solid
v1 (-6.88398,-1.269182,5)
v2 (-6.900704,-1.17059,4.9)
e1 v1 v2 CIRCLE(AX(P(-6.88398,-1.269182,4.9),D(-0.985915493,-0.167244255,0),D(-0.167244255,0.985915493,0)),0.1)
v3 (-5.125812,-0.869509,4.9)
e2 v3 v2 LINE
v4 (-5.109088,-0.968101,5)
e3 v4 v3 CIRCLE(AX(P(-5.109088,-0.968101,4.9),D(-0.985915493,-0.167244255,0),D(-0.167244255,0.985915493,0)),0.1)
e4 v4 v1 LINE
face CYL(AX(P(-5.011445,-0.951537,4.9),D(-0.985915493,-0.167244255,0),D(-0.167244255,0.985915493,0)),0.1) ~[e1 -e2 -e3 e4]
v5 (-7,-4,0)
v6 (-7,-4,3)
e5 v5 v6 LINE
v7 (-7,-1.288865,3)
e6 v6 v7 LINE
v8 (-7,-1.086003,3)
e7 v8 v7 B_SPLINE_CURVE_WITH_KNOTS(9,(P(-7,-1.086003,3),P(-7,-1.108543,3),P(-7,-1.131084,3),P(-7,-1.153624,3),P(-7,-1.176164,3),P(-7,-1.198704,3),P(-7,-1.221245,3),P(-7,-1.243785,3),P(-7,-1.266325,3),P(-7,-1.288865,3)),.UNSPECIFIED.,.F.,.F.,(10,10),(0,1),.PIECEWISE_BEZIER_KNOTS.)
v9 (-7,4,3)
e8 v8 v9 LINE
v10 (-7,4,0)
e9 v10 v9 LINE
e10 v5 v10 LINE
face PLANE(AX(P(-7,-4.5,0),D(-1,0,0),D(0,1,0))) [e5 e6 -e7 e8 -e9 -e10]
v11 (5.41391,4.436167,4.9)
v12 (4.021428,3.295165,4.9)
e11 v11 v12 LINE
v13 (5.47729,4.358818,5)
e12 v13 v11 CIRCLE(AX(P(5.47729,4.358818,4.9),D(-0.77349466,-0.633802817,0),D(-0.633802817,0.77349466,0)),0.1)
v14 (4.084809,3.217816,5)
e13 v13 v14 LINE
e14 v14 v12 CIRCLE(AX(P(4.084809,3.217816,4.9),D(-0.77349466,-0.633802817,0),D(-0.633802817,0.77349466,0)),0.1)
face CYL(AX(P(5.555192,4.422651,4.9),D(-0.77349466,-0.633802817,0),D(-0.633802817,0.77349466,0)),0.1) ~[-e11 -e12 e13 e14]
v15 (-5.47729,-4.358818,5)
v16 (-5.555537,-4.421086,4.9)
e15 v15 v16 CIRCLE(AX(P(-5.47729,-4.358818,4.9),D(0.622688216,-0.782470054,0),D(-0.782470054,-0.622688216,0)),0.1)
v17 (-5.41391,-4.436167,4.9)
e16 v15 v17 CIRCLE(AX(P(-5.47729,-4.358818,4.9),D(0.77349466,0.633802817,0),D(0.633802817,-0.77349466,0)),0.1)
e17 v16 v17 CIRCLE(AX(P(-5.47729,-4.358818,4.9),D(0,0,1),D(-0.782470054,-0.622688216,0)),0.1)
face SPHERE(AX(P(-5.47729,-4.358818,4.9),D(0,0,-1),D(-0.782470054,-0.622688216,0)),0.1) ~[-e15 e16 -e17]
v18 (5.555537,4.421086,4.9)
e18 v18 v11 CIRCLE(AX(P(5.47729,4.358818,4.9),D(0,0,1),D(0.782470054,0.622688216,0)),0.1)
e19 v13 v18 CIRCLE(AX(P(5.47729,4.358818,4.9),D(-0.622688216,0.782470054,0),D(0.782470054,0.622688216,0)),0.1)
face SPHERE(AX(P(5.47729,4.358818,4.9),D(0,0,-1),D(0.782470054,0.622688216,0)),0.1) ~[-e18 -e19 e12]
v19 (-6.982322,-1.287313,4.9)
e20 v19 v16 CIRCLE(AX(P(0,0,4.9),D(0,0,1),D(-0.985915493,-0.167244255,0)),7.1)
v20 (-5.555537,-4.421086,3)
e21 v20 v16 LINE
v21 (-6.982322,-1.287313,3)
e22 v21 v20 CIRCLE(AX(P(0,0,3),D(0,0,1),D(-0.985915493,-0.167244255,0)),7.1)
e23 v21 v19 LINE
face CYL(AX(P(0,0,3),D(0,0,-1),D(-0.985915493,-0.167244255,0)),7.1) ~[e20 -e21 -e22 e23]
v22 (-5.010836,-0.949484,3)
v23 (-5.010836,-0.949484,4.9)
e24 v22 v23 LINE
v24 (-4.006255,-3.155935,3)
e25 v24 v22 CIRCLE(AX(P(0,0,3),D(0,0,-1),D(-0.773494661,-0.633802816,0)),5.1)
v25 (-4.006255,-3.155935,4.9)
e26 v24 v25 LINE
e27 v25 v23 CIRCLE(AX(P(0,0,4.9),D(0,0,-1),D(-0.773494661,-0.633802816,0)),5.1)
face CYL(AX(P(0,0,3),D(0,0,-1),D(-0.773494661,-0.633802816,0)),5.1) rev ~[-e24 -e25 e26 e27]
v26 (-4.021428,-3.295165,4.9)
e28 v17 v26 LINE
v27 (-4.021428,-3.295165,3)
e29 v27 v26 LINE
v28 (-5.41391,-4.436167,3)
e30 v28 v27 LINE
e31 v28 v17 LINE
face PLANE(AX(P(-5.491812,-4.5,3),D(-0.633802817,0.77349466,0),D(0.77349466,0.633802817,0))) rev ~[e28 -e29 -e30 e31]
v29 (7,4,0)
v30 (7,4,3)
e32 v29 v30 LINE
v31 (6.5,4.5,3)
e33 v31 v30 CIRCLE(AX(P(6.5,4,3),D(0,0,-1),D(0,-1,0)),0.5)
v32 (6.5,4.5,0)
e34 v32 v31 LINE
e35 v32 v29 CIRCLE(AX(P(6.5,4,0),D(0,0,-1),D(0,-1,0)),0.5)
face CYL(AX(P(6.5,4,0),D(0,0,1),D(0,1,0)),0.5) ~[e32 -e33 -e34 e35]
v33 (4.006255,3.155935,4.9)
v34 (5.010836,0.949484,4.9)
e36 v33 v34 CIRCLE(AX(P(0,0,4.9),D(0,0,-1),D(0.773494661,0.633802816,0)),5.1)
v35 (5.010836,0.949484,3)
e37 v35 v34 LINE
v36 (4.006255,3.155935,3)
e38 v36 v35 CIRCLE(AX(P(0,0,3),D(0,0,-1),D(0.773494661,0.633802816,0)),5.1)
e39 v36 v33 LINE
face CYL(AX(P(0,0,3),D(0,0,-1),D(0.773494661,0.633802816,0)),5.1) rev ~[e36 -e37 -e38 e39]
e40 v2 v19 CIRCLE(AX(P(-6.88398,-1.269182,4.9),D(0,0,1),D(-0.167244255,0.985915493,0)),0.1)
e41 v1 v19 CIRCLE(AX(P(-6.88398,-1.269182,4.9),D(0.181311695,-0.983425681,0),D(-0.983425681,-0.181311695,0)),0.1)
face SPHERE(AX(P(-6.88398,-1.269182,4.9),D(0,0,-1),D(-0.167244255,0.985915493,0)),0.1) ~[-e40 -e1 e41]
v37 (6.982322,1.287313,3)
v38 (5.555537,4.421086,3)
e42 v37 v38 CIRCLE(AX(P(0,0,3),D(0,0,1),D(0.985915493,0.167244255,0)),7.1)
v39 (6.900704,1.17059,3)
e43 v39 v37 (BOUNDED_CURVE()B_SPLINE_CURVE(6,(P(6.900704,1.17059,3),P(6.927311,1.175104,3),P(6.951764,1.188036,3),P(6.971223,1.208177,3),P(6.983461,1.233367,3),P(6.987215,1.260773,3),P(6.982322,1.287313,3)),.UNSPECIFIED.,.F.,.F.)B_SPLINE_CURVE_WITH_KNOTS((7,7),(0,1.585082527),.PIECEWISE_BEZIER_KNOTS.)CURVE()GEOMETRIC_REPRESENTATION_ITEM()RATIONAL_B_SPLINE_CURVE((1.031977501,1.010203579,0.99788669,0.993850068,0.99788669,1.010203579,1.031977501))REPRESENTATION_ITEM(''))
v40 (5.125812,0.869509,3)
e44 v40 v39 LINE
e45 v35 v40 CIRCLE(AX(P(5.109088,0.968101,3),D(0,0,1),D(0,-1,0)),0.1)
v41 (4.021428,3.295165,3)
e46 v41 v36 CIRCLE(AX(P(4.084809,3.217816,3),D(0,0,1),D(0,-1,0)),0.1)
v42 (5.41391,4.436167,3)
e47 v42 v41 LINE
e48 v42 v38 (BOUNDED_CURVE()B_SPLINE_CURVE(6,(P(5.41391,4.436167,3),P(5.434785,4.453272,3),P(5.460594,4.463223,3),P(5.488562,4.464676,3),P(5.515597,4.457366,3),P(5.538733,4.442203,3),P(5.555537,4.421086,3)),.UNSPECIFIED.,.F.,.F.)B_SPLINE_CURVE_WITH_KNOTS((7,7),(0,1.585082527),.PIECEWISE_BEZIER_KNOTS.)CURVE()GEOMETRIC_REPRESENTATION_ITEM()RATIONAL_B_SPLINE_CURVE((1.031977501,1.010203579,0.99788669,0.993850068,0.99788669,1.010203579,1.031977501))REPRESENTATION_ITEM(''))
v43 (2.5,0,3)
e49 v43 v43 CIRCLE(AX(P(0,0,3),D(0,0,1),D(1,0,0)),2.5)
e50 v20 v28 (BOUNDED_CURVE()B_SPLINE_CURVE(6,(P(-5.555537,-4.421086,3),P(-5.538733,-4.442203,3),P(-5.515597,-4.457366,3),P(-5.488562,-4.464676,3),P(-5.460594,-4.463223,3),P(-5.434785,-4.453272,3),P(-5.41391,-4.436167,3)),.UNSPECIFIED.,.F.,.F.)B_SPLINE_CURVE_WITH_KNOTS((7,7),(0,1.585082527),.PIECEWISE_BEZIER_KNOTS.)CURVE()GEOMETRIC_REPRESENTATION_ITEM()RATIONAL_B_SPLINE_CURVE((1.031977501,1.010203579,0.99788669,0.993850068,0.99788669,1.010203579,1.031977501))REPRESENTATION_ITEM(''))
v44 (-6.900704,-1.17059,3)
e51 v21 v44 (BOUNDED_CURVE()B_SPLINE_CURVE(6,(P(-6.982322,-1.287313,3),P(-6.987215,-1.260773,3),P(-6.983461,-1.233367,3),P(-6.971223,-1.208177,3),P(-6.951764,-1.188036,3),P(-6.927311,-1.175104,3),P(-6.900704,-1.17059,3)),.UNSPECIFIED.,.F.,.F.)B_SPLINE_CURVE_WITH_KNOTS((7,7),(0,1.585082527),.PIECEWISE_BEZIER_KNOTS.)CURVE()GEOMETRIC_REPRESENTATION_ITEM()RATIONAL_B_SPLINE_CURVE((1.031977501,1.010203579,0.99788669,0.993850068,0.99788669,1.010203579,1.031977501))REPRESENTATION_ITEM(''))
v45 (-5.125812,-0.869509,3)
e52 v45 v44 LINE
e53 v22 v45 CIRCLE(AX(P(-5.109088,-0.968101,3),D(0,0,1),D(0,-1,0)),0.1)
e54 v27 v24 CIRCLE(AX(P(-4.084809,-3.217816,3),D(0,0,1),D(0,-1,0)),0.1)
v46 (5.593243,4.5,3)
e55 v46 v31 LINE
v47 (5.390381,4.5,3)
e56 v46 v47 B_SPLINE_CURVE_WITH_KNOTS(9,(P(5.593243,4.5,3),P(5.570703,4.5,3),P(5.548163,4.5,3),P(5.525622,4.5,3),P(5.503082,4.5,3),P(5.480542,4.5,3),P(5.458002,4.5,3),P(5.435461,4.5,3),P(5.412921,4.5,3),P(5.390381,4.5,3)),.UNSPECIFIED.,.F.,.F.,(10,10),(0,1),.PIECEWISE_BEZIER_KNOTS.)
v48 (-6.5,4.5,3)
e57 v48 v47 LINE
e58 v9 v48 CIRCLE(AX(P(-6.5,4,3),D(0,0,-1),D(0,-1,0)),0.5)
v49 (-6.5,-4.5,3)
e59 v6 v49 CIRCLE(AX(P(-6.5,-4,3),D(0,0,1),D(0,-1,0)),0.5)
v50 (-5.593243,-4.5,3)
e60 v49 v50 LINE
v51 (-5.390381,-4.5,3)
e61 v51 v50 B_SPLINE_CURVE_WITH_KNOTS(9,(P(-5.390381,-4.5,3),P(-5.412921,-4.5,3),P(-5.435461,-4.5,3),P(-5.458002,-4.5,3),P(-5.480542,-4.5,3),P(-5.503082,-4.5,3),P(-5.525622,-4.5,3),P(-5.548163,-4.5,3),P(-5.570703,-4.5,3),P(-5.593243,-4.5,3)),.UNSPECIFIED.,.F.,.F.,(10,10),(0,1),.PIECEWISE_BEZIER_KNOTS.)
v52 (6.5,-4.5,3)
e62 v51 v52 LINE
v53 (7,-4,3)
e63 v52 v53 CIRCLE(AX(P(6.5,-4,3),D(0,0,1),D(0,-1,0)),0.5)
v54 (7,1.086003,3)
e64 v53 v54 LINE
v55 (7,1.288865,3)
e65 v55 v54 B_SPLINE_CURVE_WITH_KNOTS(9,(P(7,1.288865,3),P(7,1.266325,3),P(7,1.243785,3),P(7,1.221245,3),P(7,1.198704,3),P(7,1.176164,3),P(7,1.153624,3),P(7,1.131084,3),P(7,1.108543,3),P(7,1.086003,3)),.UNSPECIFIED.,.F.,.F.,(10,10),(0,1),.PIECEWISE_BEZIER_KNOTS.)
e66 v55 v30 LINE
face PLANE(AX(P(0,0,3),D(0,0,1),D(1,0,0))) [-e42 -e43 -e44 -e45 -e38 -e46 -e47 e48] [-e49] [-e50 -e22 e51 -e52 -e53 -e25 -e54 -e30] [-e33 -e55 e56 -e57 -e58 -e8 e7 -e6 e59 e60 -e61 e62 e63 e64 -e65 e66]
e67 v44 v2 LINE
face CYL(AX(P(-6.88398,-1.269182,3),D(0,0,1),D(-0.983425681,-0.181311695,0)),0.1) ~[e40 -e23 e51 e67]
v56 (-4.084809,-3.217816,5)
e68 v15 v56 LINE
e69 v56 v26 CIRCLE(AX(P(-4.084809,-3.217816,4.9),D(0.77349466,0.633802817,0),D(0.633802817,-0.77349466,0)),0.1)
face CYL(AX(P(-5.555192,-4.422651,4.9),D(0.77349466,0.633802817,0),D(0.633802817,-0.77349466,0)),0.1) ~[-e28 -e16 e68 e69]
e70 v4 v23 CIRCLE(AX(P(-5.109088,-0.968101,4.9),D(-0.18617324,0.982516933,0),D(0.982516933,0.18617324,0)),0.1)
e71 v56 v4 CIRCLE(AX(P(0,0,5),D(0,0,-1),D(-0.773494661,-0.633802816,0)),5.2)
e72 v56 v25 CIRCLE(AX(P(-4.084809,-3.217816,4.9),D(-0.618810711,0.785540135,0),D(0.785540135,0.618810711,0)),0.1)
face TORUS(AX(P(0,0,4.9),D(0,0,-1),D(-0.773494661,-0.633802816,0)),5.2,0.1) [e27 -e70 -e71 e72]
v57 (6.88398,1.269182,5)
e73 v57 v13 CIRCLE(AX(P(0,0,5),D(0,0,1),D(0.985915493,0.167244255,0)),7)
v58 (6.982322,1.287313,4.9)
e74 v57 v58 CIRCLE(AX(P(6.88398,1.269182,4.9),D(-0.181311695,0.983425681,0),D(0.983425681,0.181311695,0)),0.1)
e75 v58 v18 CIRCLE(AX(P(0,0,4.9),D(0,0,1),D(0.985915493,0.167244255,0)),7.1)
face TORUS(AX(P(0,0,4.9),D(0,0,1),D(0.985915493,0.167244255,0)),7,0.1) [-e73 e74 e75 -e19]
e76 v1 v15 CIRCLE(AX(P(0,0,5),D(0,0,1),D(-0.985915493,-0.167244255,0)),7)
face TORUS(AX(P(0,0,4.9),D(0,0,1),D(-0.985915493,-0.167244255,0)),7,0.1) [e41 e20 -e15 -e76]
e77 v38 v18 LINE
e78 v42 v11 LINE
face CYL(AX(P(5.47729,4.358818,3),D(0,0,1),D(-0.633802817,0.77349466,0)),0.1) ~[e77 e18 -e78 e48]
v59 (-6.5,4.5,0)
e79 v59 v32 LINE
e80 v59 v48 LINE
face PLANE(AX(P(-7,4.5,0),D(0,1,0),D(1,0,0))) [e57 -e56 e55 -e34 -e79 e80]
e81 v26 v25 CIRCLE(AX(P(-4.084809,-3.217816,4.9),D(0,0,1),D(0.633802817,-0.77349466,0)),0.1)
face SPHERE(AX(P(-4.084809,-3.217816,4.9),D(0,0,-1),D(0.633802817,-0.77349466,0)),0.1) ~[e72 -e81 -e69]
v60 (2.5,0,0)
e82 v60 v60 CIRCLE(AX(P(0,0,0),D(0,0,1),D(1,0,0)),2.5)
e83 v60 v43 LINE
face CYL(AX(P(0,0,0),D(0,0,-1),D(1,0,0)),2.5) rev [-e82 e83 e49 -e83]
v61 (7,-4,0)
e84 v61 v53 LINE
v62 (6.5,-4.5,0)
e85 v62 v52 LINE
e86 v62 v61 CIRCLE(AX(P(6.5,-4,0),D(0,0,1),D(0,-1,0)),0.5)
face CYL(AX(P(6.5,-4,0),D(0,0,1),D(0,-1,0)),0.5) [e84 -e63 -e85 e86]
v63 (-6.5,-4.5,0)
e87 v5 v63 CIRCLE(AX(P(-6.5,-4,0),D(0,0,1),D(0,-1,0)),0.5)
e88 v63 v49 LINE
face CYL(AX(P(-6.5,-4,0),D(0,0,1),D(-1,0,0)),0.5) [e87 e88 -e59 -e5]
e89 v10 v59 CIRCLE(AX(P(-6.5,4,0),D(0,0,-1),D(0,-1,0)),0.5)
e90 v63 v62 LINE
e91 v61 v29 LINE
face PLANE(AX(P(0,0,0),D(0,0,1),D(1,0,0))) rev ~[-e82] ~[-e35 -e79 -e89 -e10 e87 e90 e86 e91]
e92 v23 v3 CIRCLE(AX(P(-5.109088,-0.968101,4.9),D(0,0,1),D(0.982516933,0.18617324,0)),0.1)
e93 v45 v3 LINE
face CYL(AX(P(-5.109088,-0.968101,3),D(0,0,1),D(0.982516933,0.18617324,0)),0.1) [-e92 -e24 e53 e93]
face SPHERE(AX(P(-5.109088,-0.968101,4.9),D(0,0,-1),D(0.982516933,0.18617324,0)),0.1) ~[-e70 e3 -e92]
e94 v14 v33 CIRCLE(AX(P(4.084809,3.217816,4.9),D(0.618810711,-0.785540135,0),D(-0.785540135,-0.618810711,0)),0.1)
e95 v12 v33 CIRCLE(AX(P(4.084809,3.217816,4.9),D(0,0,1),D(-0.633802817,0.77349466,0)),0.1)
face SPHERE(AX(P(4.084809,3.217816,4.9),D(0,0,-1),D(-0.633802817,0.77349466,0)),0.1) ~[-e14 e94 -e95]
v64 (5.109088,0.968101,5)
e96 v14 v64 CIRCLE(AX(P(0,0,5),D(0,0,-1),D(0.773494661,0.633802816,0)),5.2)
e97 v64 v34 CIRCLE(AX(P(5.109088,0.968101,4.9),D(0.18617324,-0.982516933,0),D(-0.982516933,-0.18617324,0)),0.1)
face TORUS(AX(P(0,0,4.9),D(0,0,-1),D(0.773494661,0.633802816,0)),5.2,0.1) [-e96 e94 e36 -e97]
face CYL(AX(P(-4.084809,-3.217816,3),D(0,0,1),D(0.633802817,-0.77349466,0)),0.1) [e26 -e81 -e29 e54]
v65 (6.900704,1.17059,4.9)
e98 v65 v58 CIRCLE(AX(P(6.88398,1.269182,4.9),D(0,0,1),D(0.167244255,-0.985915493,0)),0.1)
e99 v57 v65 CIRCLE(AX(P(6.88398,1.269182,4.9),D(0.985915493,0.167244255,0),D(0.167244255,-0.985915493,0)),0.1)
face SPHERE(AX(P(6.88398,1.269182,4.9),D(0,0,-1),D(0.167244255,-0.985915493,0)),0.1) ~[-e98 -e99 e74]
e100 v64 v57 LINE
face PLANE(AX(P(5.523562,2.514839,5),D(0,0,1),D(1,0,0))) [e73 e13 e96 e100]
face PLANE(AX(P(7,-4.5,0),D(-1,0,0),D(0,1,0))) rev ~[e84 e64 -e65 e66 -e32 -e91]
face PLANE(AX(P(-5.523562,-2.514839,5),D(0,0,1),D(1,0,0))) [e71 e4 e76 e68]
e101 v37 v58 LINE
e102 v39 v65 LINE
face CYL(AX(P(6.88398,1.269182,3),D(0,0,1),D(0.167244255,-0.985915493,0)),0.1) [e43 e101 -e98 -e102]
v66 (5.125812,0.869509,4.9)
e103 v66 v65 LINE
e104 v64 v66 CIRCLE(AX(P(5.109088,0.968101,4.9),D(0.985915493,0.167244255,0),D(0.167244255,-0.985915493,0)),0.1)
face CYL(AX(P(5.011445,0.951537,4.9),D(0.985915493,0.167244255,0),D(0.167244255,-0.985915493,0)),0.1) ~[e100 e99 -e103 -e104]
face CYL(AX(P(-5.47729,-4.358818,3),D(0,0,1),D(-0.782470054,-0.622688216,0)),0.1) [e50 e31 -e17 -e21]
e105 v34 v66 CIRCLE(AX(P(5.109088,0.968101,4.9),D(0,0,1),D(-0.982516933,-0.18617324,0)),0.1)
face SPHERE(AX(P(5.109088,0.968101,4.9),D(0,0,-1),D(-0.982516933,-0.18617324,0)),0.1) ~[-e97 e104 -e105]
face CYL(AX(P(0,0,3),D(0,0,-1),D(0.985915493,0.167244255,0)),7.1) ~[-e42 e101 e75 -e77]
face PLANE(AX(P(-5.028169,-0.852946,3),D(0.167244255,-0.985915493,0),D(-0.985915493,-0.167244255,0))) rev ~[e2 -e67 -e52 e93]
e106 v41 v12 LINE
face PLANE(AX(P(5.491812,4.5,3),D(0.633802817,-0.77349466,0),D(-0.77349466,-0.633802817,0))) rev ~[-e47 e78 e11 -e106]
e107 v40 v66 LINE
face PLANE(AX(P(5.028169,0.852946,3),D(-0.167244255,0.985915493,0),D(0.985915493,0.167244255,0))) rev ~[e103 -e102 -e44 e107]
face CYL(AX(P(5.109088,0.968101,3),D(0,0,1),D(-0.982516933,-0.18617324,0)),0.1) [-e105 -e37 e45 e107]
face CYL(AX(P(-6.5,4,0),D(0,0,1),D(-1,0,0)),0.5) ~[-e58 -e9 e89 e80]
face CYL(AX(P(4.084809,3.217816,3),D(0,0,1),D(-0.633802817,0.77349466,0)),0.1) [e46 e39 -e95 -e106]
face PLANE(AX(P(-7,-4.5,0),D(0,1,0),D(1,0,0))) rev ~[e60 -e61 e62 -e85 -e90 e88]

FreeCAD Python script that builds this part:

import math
import FreeCAD as App
import Part
import Sketcher

V = App.Vector
Q = App.Units.Quantity


def edges_at(feature, points):
    """Names of the edges that pass closest to the given points."""
    edges = feature.Shape.Edges
    near = lambda p: min(range(len(edges)), key=lambda i: edges[i].distToShape(Part.Vertex(*p))[0])
    return sorted({f"Edge{near(p) + 1}" for p in points})


def add_polygon(sketch, points):
    """Adds a closed chain of lines whose ends are joined by coincident constraints."""
    first, n = sketch.GeometryCount, len(points)
    for a, b in zip(points, points[1:] + points[:1]):
        sketch.addGeometry(Part.LineSegment(App.Vector(*a, 0), App.Vector(*b, 0)), False)
    for i in range(n):
        sketch.addConstraint(Sketcher.Constraint("Coincident", first + i, 2, first + (i + 1) % n, 1))

doc = App.newDocument("Part")
body = doc.addObject("PartDesign::Body", "Body")

# Sketch on XY plane
sketch1 = doc.addObject("Sketcher::SketchObject", "Sketch")
body.addObject(sketch1)
sketch1.AttachmentSupport = (doc.XY_Plane, [""])
sketch1.MapMode = "FlatFace"
add_polygon(sketch1, [(-7, 4.5), (-7, -4.5), (7, -4.5), (7, 4.5)])  # lines 0-3
sketch1.addGeometry(Part.Circle(V(0, 0, 0), V(0, 0, 1), 2.5), False)  # 4
sketch1.addConstraint([
    Sketcher.Constraint("Vertical", 0),
    Sketcher.Constraint("Horizontal", 1),
    Sketcher.Constraint("Vertical", 2),
    Sketcher.Constraint("Horizontal", 3),
    Sketcher.Constraint("Coincident", 4, 3, -1, 1),
    Sketcher.Constraint("Symmetric", 0, 2, 2, 2, -1, 1),
    Sketcher.Constraint("Diameter", 4, Q("5 mm")),
    Sketcher.Constraint("DistanceX", 1, 1, 1, 2, Q("14 mm")),
    Sketcher.Constraint("DistanceY", 0, 2, 0, 1, Q("9 mm")),
])
pad1 = doc.addObject("PartDesign::Pad", "Pad")
body.addObject(pad1)
pad1.Profile = sketch1
pad1.Length = 3
doc.recompute()

fillet = doc.addObject("PartDesign::Fillet", "Fillet")
body.addObject(fillet)
fillet.Base = (pad1, edges_at(pad1, [
    (-7, 4.5, 1.5),
    (7, 4.5, 1.5),
    (7, -4.5, 1.5),
    (-7, -4.5, 1.5),
]))
fillet.Radius = 0.5

# Sketch on XY plane
sketch2 = doc.addObject("Sketcher::SketchObject", "Sketch001")
body.addObject(sketch2)
sketch2.AttachmentSupport = (doc.XY_Plane, [""])
sketch2.MapMode = "FlatFace"
sketch2.AttachmentOffset = App.Placement(V(0, 0, 3), App.Rotation())
sketch2.addGeometry([
    Part.LineSegment(V(-5, -0.9, 0), V(-7, -1.2, 0)),  # 0
    Part.ArcOfCircle(Part.Circle(V(0, 0, 0), V(0, 0, 1), 7.1), math.radians(-170), math.radians(-141)),  # 1
    Part.LineSegment(V(-5.5, -4.5, 0), V(-3.9, -3.2, 0)),  # 2
    Part.ArcOfCircle(Part.Circle(V(0, 0, 0), V(0, 0, 1), 5.1), math.radians(-170), math.radians(-141)),  # 3
    Part.LineSegment(V(5.5, 4.5, 0), V(3.9, 3.2, 0)),  # 4
    Part.ArcOfCircle(Part.Circle(V(0, 0, 0), V(0, 0, 1), 5.1), math.radians(10), math.radians(39)),  # 5
    Part.LineSegment(V(5, 0.9, 0), V(7, 1.2, 0)),  # 6
    Part.ArcOfCircle(Part.Circle(V(0, 0, 0), V(0, 0, 1), 7.1), math.radians(10), math.radians(39)),  # 7
], False)
sketch2.addConstraint([
    Sketcher.Constraint("Coincident", 0, 2, 1, 1),
    Sketcher.Constraint("Coincident", 1, 2, 2, 1),
    Sketcher.Constraint("Coincident", 2, 2, 3, 2),
    Sketcher.Constraint("Coincident", 3, 1, 0, 1),
    Sketcher.Constraint("Coincident", 4, 2, 5, 2),
    Sketcher.Constraint("Coincident", 5, 1, 6, 1),
    Sketcher.Constraint("Coincident", 6, 2, 7, 1),
    Sketcher.Constraint("Coincident", 7, 2, 4, 1),
    Sketcher.Constraint("Coincident", 1, 3, -1, 1),
    Sketcher.Constraint("Coincident", 3, 3, -1, 1),
    Sketcher.Constraint("Coincident", 5, 3, -1, 1),
    Sketcher.Constraint("Coincident", 7, 3, -1, 1),
    Sketcher.Constraint("Equal", 3, 5),
    Sketcher.Constraint("Equal", 1, 7),
    Sketcher.Constraint("Parallel", 2, 4),
    Sketcher.Constraint("Parallel", 0, 6),
    Sketcher.Constraint("Radius", 1, Q("7.1 mm")),
    Sketcher.Constraint("Radius", 3, Q("5.1 mm")),
    Sketcher.Constraint("DistanceX", 0, 2, -1, 1, Q("7 mm")),
    Sketcher.Constraint("DistanceX", -1, 1, 6, 2, Q("7 mm")),
    Sketcher.Constraint("DistanceY", 1, 2, -1, 1, Q("4.5 mm")),
    Sketcher.Constraint("DistanceY", -1, 1, 7, 2, Q("4.5 mm")),
    Sketcher.Constraint("DistanceX", 3, 1, -1, 1, Q("5.028169 mm")),
    Sketcher.Constraint("DistanceX", 1, 2, 2, 2, Q("1.546989 mm")),
])
pad2 = doc.addObject("PartDesign::Pad", "Pad001")
body.addObject(pad2)
pad2.Profile = sketch2
pad2.Length = 2
doc.recompute()

fillet2 = doc.addObject("PartDesign::Fillet", "Fillet001")
body.addObject(fillet2)
fillet2.Base = (pad2, edges_at(pad2, [
    (-5.028, -0.853, 4),
    (-7, -1.187, 4),
    (-5.492, -4.5, 4),
    (-4.642, -2.113, 5),
    (-3.945, -3.232, 4),
    (-6.014, -1.02, 5),
    (-6.462, -2.942, 5),
    (-4.718, -3.866, 5),
    (5.492, 4.5, 4),
    (3.945, 3.232, 4),
    (6.014, 1.02, 5),
    (5.028, 0.853, 4),
    (6.462, 2.942, 5),
    (7, 1.187, 4),
    (4.718, 3.866, 5),
    (4.642, 2.113, 5),
]))
fillet2.Radius = 0.1

doc.recompute()
